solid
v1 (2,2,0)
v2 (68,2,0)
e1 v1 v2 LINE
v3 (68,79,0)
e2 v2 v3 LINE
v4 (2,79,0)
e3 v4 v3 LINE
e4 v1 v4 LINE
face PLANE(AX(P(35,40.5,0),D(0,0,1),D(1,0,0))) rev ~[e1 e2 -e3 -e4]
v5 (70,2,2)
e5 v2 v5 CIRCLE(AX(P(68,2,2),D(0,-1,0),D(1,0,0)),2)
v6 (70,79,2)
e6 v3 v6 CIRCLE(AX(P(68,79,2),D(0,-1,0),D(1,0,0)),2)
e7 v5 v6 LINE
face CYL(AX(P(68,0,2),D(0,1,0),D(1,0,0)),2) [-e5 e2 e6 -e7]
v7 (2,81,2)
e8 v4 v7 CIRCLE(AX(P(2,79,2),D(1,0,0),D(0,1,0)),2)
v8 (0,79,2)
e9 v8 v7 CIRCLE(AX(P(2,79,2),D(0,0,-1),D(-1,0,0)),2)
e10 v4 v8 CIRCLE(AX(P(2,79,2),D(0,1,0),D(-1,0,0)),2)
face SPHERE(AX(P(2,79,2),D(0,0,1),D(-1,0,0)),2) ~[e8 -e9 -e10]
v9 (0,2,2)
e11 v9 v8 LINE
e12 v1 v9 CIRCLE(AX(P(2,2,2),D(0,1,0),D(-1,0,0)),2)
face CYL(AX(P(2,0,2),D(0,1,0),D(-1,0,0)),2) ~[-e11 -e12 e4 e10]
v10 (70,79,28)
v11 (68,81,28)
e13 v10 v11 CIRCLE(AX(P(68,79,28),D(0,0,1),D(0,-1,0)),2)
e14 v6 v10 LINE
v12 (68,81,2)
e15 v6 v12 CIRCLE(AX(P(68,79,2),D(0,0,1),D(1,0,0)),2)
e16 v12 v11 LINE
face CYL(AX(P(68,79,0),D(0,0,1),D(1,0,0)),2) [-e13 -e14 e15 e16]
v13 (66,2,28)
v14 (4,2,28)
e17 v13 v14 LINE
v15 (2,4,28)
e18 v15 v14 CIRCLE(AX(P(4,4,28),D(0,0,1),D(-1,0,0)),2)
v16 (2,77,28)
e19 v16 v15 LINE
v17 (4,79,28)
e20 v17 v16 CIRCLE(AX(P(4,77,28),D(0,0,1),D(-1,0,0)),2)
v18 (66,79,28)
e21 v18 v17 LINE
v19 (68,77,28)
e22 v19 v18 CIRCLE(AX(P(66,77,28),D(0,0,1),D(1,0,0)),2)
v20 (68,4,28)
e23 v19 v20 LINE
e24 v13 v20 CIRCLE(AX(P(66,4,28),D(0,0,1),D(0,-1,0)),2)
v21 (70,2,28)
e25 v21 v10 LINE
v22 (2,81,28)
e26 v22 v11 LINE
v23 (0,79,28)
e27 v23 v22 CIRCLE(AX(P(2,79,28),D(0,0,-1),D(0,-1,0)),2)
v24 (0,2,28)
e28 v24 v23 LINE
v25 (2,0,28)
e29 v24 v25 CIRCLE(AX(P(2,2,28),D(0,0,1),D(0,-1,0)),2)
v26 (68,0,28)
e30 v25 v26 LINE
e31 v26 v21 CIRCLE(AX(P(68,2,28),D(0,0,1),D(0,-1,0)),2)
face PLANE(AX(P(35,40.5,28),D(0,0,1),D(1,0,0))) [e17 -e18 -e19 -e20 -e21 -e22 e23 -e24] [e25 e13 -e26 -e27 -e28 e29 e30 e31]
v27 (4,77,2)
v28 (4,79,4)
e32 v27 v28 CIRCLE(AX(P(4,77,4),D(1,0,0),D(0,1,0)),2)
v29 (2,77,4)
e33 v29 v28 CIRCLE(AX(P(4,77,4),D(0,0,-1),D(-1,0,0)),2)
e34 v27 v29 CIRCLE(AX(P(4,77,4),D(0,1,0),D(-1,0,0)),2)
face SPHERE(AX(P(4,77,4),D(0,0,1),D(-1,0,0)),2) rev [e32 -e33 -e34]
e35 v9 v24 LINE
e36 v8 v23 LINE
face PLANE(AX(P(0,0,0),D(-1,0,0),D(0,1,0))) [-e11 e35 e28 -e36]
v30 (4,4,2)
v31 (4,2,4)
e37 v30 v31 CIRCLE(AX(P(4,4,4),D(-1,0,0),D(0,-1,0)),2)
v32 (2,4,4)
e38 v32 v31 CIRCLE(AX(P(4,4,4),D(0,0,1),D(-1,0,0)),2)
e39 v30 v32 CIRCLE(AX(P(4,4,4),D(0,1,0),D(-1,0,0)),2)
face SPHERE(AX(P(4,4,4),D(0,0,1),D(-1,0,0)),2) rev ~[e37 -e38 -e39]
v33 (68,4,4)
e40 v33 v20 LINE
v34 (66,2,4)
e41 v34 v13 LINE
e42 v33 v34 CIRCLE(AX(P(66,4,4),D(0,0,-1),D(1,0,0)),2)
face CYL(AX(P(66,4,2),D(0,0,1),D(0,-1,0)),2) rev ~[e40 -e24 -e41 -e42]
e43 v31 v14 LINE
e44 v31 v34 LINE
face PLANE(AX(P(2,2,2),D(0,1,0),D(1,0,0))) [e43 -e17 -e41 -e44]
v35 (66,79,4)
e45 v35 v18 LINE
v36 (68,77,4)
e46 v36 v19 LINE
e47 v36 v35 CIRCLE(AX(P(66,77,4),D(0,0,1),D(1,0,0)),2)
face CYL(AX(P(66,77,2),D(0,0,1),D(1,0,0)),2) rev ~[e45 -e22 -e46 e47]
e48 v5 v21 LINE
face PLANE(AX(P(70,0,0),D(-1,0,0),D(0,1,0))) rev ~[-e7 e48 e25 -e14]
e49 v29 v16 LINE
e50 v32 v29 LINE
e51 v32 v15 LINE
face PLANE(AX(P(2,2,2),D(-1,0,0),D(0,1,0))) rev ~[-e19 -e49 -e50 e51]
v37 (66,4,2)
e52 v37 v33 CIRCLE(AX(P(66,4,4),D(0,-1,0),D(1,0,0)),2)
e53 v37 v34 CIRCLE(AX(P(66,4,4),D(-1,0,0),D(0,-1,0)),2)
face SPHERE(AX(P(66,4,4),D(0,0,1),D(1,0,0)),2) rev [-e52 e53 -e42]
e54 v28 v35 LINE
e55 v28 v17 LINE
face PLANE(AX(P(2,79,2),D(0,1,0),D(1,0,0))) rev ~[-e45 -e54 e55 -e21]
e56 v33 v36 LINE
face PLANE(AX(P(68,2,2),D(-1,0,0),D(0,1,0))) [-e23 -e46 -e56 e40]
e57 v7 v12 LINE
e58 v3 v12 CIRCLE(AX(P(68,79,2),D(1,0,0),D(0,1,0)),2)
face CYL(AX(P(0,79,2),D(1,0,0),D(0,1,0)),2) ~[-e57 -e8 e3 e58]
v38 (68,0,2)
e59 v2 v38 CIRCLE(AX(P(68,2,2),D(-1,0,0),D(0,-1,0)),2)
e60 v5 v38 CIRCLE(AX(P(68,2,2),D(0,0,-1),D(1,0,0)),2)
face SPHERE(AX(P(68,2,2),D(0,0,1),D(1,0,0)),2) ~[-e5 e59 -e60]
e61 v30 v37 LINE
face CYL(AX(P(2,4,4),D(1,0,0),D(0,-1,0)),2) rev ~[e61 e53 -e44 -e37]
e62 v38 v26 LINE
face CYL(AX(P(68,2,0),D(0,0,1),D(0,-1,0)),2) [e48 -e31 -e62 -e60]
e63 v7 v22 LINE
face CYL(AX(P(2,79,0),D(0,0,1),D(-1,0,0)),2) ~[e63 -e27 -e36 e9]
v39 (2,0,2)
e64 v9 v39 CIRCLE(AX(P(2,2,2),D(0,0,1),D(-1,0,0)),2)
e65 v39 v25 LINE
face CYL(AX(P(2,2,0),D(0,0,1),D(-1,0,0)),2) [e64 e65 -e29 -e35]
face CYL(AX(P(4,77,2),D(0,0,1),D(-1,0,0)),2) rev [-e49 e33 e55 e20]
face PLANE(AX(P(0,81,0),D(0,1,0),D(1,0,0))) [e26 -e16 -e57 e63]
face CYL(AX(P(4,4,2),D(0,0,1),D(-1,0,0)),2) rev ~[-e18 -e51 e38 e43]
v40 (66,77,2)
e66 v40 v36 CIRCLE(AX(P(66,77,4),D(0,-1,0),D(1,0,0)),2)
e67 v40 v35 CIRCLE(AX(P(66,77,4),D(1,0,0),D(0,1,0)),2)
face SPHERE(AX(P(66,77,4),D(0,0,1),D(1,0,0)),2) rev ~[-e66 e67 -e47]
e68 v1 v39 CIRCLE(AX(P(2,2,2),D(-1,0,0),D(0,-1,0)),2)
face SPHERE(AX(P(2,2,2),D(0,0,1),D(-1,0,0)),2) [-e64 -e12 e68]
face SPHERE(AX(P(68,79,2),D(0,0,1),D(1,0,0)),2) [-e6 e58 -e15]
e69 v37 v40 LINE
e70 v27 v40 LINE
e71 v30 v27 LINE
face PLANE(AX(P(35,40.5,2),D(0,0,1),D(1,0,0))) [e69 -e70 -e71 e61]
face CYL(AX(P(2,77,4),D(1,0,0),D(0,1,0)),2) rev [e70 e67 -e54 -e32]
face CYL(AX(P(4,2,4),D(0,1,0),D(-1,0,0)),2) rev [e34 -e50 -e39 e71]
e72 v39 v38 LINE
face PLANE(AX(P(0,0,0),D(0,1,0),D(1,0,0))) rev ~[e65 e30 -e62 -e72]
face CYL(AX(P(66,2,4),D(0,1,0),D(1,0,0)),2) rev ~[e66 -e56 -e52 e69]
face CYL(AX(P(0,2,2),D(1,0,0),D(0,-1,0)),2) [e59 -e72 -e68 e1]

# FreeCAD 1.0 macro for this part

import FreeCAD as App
import Part
import Sketcher

V = App.Vector


def edges_at(feature, points):
    """Names of the edges that pass closest to the given points."""
    edges = feature.Shape.Edges
    near = lambda p: min(range(len(edges)), key=lambda i: edges[i].distToShape(Part.Vertex(*p))[0])
    return sorted({f"Edge{near(p) + 1}" for p in points})


def add_polygon(sketch, points):
    """Adds a closed chain of lines whose ends are joined by coincident constraints."""
    first, n = sketch.GeometryCount, len(points)
    for a, b in zip(points, points[1:] + points[:1]):
        sketch.addGeometry(Part.LineSegment(App.Vector(*a, 0), App.Vector(*b, 0)), False)
    for i in range(n):
        sketch.addConstraint(Sketcher.Constraint("Coincident", first + i, 2, first + (i + 1) % n, 1))

doc = App.newDocument("Part")
body = doc.addObject("PartDesign::Body", "Body")

# Sketch on XY plane
sketch1 = body.newObject("Sketcher::SketchObject", "Sketch")
sketch1.AttachmentSupport = (doc.getObject("XY_Plane"), [""])
sketch1.MapMode = "FlatFace"
sketch1.AttachmentOffset = App.Placement(V(0, 0, 2), App.Rotation())
add_polygon(sketch1, [(2, 79), (2, 2), (68, 2), (68, 79)])  # lines 0-3
sketch1.addConstraint([
    Sketcher.Constraint("Vertical", 0),
    Sketcher.Constraint("Horizontal", 1),
    Sketcher.Constraint("Vertical", 2),
    Sketcher.Constraint("Horizontal", 3),
    Sketcher.Constraint("DistanceX", 1, 1, 1, 2, 66.0),
    Sketcher.Constraint("DistanceY", 0, 2, 0, 1, 77.0),
    Sketcher.Constraint("DistanceX", -1, 1, 0, 2, 2.0),
    Sketcher.Constraint("DistanceY", -1, 1, 0, 2, 2.0),
])
pad1 = body.newObject("PartDesign::Pad", "Pad")
pad1.Profile = sketch1
pad1.Length = 39
doc.recompute()

fillet = body.newObject("PartDesign::Fillet", "Fillet")
fillet.Base = (pad1, edges_at(pad1, [
    (2, 2, 21.5),
    (2, 79, 21.5),
    (2, 40.5, 2),
    (68, 2, 21.5),
    (68, 79, 21.5),
    (68, 40.5, 2),
    (35, 2, 2),
    (35, 79, 2),
]))
fillet.Radius = 2
body2 = doc.addObject("PartDesign::Body", "Body001")

# Sketch on XY plane
sketch2 = body2.newObject("Sketcher::SketchObject", "Sketch001")
sketch2.AttachmentSupport = (doc.getObject("XY_Plane001"), [""])
sketch2.MapMode = "FlatFace"
add_polygon(sketch2, [(0, 81), (0, 0), (70, 0), (70, 81)])  # lines 0-3
sketch2.addConstraint([
    Sketcher.Constraint("Vertical", 0),
    Sketcher.Constraint("Horizontal", 1),
    Sketcher.Constraint("Vertical", 2),
    Sketcher.Constraint("Horizontal", 3),
    Sketcher.Constraint("Coincident", 0, 2, -1, 1),
    Sketcher.Constraint("DistanceX", 1, 1, 1, 2, 70.0),
    Sketcher.Constraint("DistanceY", 0, 2, 0, 1, 81.0),
])
pad2 = body2.newObject("PartDesign::Pad", "Pad001")
pad2.Profile = sketch2
pad2.Length = 28
doc.recompute()

fillet2 = body2.newObject("PartDesign::Fillet", "Fillet001")
fillet2.Base = (pad2, edges_at(pad2, [
    (0, 0, 14),
    (0, 81, 14),
    (0, 40.5, 0),
    (70, 0, 14),
    (70, 81, 14),
    (70, 40.5, 0),
    (35, 0, 0),
    (35, 81, 0),
]))
fillet2.Radius = 2
doc.recompute()

boolean = body2.newObject("PartDesign::Boolean", "Boolean")
boolean.Type = "Cut"
boolean.addObjects([body])

doc.recompute()
